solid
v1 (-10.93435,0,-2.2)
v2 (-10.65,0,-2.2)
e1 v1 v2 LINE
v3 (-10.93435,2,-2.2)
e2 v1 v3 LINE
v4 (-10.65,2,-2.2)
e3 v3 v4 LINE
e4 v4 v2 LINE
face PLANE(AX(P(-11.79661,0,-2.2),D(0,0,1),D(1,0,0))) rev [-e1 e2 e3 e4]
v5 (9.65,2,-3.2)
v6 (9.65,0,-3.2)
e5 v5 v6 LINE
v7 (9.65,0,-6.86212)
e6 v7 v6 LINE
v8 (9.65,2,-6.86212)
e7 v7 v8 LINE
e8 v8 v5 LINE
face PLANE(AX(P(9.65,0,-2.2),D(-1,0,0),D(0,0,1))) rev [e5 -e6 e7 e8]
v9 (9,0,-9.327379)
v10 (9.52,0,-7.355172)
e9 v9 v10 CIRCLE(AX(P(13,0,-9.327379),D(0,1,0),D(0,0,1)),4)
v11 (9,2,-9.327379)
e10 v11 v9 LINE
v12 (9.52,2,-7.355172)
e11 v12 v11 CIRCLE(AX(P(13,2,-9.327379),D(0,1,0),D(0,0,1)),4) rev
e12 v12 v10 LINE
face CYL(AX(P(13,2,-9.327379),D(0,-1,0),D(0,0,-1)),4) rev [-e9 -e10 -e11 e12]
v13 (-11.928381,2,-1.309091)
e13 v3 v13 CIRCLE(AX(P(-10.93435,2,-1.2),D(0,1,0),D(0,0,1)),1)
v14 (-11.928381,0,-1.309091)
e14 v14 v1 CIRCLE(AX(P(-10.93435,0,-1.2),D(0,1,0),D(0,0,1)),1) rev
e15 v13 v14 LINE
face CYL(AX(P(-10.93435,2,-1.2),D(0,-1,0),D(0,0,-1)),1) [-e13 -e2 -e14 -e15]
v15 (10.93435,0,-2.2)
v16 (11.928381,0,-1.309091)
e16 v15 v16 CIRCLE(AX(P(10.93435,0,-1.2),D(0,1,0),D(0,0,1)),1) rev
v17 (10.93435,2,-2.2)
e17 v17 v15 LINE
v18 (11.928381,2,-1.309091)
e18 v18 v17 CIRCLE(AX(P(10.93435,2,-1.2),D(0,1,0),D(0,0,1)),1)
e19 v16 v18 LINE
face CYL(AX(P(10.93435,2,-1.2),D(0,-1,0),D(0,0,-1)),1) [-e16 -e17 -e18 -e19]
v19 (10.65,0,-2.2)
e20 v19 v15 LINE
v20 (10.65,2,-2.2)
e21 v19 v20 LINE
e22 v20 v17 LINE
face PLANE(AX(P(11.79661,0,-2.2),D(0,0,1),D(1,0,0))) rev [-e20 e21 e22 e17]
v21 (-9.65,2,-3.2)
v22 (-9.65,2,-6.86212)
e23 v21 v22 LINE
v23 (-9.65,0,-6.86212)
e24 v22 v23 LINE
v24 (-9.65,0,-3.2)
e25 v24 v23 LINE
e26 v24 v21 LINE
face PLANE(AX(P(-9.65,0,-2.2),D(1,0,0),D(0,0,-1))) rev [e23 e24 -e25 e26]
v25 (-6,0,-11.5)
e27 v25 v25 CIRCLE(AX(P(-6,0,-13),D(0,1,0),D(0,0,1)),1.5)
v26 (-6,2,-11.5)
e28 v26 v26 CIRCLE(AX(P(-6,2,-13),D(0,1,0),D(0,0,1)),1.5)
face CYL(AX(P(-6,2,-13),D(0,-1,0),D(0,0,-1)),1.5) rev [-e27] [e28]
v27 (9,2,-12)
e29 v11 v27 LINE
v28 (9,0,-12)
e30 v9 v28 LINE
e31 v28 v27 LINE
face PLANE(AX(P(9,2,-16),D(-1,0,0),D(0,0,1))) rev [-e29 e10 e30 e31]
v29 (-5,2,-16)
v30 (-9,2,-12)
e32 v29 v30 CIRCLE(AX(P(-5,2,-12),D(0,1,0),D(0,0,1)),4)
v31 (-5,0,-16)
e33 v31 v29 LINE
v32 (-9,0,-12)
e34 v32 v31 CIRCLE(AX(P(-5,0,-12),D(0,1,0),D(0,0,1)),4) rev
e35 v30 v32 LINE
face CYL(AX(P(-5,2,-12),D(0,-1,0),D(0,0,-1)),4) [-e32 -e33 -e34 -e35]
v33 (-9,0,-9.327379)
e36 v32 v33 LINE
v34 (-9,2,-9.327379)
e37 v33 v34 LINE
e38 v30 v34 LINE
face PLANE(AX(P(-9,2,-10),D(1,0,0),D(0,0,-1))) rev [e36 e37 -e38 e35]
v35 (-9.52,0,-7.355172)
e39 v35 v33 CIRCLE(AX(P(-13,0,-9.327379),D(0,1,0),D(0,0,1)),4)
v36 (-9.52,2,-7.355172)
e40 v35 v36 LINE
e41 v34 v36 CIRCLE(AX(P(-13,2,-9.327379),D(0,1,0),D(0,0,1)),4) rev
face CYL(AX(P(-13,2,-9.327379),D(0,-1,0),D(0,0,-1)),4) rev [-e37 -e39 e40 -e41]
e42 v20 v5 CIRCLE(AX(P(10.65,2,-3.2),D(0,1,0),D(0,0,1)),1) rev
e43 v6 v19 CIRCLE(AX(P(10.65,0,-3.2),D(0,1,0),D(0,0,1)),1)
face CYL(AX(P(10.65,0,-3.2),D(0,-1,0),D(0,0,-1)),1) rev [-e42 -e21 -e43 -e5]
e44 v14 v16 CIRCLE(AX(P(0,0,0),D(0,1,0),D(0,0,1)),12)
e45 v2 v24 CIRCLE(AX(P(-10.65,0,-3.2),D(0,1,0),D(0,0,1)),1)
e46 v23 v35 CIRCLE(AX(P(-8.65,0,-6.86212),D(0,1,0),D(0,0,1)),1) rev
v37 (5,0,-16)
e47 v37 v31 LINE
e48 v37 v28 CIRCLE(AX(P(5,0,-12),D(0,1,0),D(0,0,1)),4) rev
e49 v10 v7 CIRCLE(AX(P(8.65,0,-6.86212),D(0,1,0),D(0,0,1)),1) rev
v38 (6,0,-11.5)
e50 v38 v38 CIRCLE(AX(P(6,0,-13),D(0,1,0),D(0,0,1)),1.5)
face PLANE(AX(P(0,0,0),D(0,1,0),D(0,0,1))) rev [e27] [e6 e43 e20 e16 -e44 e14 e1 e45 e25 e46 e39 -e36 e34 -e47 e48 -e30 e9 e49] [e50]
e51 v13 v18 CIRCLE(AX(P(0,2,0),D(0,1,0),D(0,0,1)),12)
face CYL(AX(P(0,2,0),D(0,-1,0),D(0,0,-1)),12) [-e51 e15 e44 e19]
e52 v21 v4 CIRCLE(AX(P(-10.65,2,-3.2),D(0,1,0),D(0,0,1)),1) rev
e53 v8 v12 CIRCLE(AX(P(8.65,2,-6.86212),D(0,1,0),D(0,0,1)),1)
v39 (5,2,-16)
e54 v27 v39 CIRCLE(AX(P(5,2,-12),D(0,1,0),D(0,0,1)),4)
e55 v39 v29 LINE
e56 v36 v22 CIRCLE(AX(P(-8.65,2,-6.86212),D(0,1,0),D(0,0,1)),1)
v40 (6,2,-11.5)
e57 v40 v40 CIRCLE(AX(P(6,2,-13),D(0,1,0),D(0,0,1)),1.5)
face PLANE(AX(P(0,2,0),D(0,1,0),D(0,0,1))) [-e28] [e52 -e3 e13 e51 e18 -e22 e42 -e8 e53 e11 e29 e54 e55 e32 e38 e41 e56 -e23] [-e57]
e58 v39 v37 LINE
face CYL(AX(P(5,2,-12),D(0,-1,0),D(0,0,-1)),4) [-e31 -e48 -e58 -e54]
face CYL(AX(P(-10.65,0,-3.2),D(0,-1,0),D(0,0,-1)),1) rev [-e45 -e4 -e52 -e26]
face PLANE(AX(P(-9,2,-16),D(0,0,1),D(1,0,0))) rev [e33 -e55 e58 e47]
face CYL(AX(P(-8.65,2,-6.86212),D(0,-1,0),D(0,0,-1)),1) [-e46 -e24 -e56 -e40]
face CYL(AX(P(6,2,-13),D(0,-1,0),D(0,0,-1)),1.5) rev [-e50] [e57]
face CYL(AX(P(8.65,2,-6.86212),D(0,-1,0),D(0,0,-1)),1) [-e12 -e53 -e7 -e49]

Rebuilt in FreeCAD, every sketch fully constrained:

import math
import FreeCAD as App
import Part
import Sketcher
from FreeCAD import Vector
Q = App.Units.Quantity


def edges_at(feature, points):
    """Names of the edges that pass closest to the given points."""
    edges = feature.Shape.Edges
    near = lambda p: min(range(len(edges)), key=lambda i: edges[i].distToShape(Part.Vertex(*p))[0])
    return sorted({f"Edge{near(p) + 1}" for p in points})

doc = App.newDocument("Part")
params = doc.addObject("Spreadsheet::Sheet", "Params")
for row, (alias, value) in enumerate([
    ("sketch1_diameter", "3 mm"),
    ("sketch1_radius", "12 mm"),
    ("sketch1_width", "18 mm"),
    ("pad1_length", "2 mm"),
    ("fillet_radius", "4 mm"),
    ("fillet2_radius", "1 mm"),
], start=1):
    params.set(f"A{row}", alias)
    params.set(f"B{row}", "=" + value)
    params.setAlias(f"B{row}", alias)

body = doc.addObject("PartDesign::Body", "Body")

# Sketch on XZ plane
sketch1 = body.newObject("Sketcher::SketchObject", "Sketch")
sketch1.AttachmentSupport = (doc.getObject("XZ_Plane"), [""])
sketch1.MapMode = "FlatFace"
sketch1.addGeometry([
    Part.ArcOfCircle(Part.Circle(Vector(0, 0, 0), Vector(0, 0, 1), 12), math.radians(-41), math.radians(221)),  # 0
    Part.LineSegment(Vector(9, -7.9, 0), Vector(9, -16, 0)),  # 1
    Part.LineSegment(Vector(9, -16, 0), Vector(-9, -16, 0)),  # 2
    Part.LineSegment(Vector(-9, -16, 0), Vector(-9, -7.9, 0)),  # 3
    Part.Circle(Vector(-6, -13, 0), Vector(0, 0, 1), 1.5),  # 4
    Part.Circle(Vector(6, -13, 0), Vector(0, 0, 1), 1.5),  # 5
], False)
sketch1.addConstraint([
    Sketcher.Constraint("Coincident", 0, 1, 1, 1),
    Sketcher.Constraint("Coincident", 1, 2, 2, 1),
    Sketcher.Constraint("Coincident", 2, 2, 3, 1),
    Sketcher.Constraint("Coincident", 3, 2, 0, 2),
    Sketcher.Constraint("Vertical", 1),
    Sketcher.Constraint("Horizontal", 2),
    Sketcher.Constraint("Vertical", 3),
    Sketcher.Constraint("Coincident", 0, 3, -1, 1),
    Sketcher.Constraint("Equal", 4, 5),
    Sketcher.Constraint("Symmetric", 4, 3, 5, 3, -2),
    Sketcher.Constraint("Horizontal", 0, 1, 3, 2),
    Sketcher.Constraint("Diameter", 4, Q("3 mm")),
    Sketcher.Constraint("Radius", 0, Q("12 mm")),
    Sketcher.Constraint("DistanceX", 2, 2, 2, 1, Q("18 mm")),
    Sketcher.Constraint("DistanceX", 4, 3, -1, 1, Q("6 mm")),
    Sketcher.Constraint("DistanceY", 4, 3, -1, 1, Q("13 mm")),
    Sketcher.Constraint("DistanceY", 1, 2, -1, 1, Q("16 mm")),
])
sketch1.setExpression("Constraints[11]", "Params.sketch1_diameter")
sketch1.setExpression("Constraints[12]", "Params.sketch1_radius")
sketch1.setExpression("Constraints[13]", "Params.sketch1_width")
pad1 = body.newObject("PartDesign::Pad", "Pad")
pad1.Profile = sketch1
pad1.setExpression("Length", "Params.pad1_length")
pad1.Reversed = True
doc.recompute()

fillet = body.newObject("PartDesign::Fillet", "Fillet")
fillet.Base = (pad1, edges_at(pad1, [
    (9, 1, -7.937),
    (-9, 1, -7.937),
    (-9, 1, -16),
    (9, 1, -16),
]))
fillet.setExpression("Radius", "Params.fillet_radius")

# Sketch on XZ plane
sketch2 = body.newObject("Sketcher::SketchObject", "Sketch001")
sketch2.AttachmentSupport = (doc.getObject("XZ_Plane"), [""])
sketch2.MapMode = "FlatFace"
sketch2.AttachmentOffset = App.Placement(Vector(0, 0, -2), App.Rotation())
sketch2.addGeometry([
    Part.LineSegment(Vector(-11.8, -2.2, 0), Vector(-9.7, -2.2, 0)),  # 0
    Part.LineSegment(Vector(-9.7, -2.2, 0), Vector(-9.7, -7.3, 0)),  # 1
    Part.ArcOfCircle(Part.Circle(Vector(-3.5, -1.7, 0), Vector(0, 0, 1), 8.3), math.radians(-176), math.radians(-138)),  # 2
    Part.LineSegment(Vector(9.7, -7.3, 0), Vector(9.7, -2.2, 0)),  # 3
    Part.LineSegment(Vector(9.7, -2.2, 0), Vector(11.8, -2.2, 0)),  # 4
    Part.ArcOfCircle(Part.Circle(Vector(3.5, -1.7, 0), Vector(0, 0, 1), 8.3), math.radians(-42), math.radians(-4)),  # 5
], False)
sketch2.addConstraint([
    Sketcher.Constraint("Coincident", 0, 2, 1, 1),
    Sketcher.Constraint("Coincident", 1, 2, 2, 2),
    Sketcher.Constraint("Coincident", 2, 1, 0, 1),
    Sketcher.Constraint("Coincident", 3, 2, 4, 1),
    Sketcher.Constraint("Coincident", 4, 2, 5, 2),
    Sketcher.Constraint("Coincident", 5, 1, 3, 1),
    Sketcher.Constraint("Horizontal", 0),
    Sketcher.Constraint("Vertical", 1),
    Sketcher.Constraint("Vertical", 3),
    Sketcher.Constraint("Horizontal", 4),
    Sketcher.Constraint("Equal", 2, 5),
    Sketcher.Constraint("Symmetric", 2, 3, 5, 3, -2),
    Sketcher.Constraint("Symmetric", 0, 2, 3, 2, -2),
    Sketcher.Constraint("DistanceY", 0, 2, -1, 1, Q("2.2 mm")),
    Sketcher.Constraint("DistanceX", 0, 2, 3, 2, Q("19.3 mm")),
    Sketcher.Constraint("Radius", 2, Q("8.333714 mm")),
    Sketcher.Constraint("DistanceX", 0, 1, 0, 2, Q("2.14661 mm")),
    Sketcher.Constraint("DistanceY", 1, 2, 1, 1, Q("5.055696 mm")),
])
pocket1 = body.newObject("PartDesign::Pocket", "Pocket")
pocket1.Profile = sketch2
pocket1.Type = "ThroughAll"
pocket1.Reversed = True
doc.recompute()

fillet2 = body.newObject("PartDesign::Fillet", "Fillet001")
fillet2.Base = (pocket1, edges_at(pocket1, [
    (-9.65, 1, -7.142),
    (-11.797, 1, -2.2),
    (-9.65, 1, -2.2),
    (9.65, 1, -7.142),
    (9.65, 1, -2.2),
    (11.797, 1, -2.2),
]))
fillet2.setExpression("Radius", "Params.fillet2_radius")

doc.recompute()
